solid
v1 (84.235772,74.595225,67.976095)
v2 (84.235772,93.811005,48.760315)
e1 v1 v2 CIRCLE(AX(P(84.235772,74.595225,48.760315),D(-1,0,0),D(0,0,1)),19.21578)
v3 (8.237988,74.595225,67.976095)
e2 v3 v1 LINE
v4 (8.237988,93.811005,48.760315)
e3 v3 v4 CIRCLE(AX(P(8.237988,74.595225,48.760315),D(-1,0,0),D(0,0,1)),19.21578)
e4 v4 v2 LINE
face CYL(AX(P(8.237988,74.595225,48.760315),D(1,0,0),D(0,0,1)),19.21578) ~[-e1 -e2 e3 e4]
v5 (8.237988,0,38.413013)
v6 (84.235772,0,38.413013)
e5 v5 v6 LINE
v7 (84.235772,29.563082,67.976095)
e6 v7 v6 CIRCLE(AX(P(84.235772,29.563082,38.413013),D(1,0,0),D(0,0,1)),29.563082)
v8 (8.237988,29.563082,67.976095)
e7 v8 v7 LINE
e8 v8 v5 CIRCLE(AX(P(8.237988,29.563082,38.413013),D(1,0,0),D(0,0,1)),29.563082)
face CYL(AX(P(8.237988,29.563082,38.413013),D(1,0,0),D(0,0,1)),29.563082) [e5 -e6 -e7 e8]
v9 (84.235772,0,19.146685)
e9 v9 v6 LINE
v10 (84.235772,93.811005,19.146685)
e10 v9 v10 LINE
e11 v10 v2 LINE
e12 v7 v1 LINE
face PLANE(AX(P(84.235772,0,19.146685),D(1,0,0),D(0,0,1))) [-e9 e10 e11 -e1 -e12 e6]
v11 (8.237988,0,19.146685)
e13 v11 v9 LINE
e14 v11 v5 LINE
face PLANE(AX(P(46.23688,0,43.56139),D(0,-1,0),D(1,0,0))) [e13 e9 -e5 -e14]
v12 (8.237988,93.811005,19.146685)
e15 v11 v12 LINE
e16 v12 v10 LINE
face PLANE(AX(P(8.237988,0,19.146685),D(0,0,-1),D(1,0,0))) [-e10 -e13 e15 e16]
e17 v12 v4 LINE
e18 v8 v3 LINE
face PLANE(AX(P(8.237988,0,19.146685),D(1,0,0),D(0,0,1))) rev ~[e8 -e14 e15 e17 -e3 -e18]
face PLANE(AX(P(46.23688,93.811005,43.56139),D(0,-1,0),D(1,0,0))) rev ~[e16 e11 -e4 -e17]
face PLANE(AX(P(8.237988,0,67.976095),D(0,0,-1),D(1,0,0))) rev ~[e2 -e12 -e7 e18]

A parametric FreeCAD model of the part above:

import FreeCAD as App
import Part
import Sketcher

V = App.Vector


def edges_at(feature, points):
    """Names of the edges that pass closest to the given points."""
    edges = feature.Shape.Edges
    near = lambda p: min(range(len(edges)), key=lambda i: edges[i].distToShape(Part.Vertex(*p))[0])
    return sorted({f"Edge{near(p) + 1}" for p in points})

doc = App.newDocument("Part")
body = doc.addObject("PartDesign::Body", "Body")

sketch1 = body.newObject("Sketcher::SketchObject", "Sketch")
sketch1.AttachmentSupport = (doc.getObject("XZ_Plane"), [""])
sketch1.MapMode = "FlatFace"
sketch1.addGeometry([
    Part.LineSegment(V(8.237988, 67.976095, 0), V(8.237988, 19.146685, 0)),
    Part.LineSegment(V(8.237988, 19.146685, 0), V(84.235772, 19.146685, 0)),
    Part.LineSegment(V(84.235772, 19.146685, 0), V(84.235772, 67.976095, 0)),
    Part.LineSegment(V(84.235772, 67.976095, 0), V(8.237988, 67.976095, 0)),
], False)
sketch1.addConstraint([
    Sketcher.Constraint("Coincident", 0, 2, 1, 1),
    Sketcher.Constraint("Coincident", 1, 2, 2, 1),
    Sketcher.Constraint("Coincident", 2, 2, 3, 1),
    Sketcher.Constraint("Coincident", 3, 2, 0, 1),
    Sketcher.Constraint("Vertical", 0),
    Sketcher.Constraint("Horizontal", 1),
    Sketcher.Constraint("Vertical", 2),
    Sketcher.Constraint("Horizontal", 3),
    Sketcher.Constraint("DistanceY", 0, 2, 0, 1, 48.82941),
    Sketcher.Constraint("DistanceX", 1, 1, 1, 2, 75.997784),
    Sketcher.Constraint("DistanceX", -1, 1, 1, 2, 84.235772),
    Sketcher.Constraint("DistanceY", -1, 1, 0, 2, 19.146685),
])
pad1 = body.newObject("PartDesign::Pad", "Pad")
pad1.Profile = sketch1
pad1.Length = 93.811005
pad1.Reversed = True
doc.recompute()

fillet = body.newObject("PartDesign::Fillet", "Fillet")
fillet.Base = (pad1, edges_at(pad1, [(46.237, 93.811, 67.976)]))
fillet.Radius = 19.21578
doc.recompute()

fillet2 = body.newObject("PartDesign::Fillet", "Fillet001")
fillet2.Base = (fillet, edges_at(fillet, [(46.237, 0, 67.976)]))
fillet2.Radius = 29.563082

doc.recompute()
